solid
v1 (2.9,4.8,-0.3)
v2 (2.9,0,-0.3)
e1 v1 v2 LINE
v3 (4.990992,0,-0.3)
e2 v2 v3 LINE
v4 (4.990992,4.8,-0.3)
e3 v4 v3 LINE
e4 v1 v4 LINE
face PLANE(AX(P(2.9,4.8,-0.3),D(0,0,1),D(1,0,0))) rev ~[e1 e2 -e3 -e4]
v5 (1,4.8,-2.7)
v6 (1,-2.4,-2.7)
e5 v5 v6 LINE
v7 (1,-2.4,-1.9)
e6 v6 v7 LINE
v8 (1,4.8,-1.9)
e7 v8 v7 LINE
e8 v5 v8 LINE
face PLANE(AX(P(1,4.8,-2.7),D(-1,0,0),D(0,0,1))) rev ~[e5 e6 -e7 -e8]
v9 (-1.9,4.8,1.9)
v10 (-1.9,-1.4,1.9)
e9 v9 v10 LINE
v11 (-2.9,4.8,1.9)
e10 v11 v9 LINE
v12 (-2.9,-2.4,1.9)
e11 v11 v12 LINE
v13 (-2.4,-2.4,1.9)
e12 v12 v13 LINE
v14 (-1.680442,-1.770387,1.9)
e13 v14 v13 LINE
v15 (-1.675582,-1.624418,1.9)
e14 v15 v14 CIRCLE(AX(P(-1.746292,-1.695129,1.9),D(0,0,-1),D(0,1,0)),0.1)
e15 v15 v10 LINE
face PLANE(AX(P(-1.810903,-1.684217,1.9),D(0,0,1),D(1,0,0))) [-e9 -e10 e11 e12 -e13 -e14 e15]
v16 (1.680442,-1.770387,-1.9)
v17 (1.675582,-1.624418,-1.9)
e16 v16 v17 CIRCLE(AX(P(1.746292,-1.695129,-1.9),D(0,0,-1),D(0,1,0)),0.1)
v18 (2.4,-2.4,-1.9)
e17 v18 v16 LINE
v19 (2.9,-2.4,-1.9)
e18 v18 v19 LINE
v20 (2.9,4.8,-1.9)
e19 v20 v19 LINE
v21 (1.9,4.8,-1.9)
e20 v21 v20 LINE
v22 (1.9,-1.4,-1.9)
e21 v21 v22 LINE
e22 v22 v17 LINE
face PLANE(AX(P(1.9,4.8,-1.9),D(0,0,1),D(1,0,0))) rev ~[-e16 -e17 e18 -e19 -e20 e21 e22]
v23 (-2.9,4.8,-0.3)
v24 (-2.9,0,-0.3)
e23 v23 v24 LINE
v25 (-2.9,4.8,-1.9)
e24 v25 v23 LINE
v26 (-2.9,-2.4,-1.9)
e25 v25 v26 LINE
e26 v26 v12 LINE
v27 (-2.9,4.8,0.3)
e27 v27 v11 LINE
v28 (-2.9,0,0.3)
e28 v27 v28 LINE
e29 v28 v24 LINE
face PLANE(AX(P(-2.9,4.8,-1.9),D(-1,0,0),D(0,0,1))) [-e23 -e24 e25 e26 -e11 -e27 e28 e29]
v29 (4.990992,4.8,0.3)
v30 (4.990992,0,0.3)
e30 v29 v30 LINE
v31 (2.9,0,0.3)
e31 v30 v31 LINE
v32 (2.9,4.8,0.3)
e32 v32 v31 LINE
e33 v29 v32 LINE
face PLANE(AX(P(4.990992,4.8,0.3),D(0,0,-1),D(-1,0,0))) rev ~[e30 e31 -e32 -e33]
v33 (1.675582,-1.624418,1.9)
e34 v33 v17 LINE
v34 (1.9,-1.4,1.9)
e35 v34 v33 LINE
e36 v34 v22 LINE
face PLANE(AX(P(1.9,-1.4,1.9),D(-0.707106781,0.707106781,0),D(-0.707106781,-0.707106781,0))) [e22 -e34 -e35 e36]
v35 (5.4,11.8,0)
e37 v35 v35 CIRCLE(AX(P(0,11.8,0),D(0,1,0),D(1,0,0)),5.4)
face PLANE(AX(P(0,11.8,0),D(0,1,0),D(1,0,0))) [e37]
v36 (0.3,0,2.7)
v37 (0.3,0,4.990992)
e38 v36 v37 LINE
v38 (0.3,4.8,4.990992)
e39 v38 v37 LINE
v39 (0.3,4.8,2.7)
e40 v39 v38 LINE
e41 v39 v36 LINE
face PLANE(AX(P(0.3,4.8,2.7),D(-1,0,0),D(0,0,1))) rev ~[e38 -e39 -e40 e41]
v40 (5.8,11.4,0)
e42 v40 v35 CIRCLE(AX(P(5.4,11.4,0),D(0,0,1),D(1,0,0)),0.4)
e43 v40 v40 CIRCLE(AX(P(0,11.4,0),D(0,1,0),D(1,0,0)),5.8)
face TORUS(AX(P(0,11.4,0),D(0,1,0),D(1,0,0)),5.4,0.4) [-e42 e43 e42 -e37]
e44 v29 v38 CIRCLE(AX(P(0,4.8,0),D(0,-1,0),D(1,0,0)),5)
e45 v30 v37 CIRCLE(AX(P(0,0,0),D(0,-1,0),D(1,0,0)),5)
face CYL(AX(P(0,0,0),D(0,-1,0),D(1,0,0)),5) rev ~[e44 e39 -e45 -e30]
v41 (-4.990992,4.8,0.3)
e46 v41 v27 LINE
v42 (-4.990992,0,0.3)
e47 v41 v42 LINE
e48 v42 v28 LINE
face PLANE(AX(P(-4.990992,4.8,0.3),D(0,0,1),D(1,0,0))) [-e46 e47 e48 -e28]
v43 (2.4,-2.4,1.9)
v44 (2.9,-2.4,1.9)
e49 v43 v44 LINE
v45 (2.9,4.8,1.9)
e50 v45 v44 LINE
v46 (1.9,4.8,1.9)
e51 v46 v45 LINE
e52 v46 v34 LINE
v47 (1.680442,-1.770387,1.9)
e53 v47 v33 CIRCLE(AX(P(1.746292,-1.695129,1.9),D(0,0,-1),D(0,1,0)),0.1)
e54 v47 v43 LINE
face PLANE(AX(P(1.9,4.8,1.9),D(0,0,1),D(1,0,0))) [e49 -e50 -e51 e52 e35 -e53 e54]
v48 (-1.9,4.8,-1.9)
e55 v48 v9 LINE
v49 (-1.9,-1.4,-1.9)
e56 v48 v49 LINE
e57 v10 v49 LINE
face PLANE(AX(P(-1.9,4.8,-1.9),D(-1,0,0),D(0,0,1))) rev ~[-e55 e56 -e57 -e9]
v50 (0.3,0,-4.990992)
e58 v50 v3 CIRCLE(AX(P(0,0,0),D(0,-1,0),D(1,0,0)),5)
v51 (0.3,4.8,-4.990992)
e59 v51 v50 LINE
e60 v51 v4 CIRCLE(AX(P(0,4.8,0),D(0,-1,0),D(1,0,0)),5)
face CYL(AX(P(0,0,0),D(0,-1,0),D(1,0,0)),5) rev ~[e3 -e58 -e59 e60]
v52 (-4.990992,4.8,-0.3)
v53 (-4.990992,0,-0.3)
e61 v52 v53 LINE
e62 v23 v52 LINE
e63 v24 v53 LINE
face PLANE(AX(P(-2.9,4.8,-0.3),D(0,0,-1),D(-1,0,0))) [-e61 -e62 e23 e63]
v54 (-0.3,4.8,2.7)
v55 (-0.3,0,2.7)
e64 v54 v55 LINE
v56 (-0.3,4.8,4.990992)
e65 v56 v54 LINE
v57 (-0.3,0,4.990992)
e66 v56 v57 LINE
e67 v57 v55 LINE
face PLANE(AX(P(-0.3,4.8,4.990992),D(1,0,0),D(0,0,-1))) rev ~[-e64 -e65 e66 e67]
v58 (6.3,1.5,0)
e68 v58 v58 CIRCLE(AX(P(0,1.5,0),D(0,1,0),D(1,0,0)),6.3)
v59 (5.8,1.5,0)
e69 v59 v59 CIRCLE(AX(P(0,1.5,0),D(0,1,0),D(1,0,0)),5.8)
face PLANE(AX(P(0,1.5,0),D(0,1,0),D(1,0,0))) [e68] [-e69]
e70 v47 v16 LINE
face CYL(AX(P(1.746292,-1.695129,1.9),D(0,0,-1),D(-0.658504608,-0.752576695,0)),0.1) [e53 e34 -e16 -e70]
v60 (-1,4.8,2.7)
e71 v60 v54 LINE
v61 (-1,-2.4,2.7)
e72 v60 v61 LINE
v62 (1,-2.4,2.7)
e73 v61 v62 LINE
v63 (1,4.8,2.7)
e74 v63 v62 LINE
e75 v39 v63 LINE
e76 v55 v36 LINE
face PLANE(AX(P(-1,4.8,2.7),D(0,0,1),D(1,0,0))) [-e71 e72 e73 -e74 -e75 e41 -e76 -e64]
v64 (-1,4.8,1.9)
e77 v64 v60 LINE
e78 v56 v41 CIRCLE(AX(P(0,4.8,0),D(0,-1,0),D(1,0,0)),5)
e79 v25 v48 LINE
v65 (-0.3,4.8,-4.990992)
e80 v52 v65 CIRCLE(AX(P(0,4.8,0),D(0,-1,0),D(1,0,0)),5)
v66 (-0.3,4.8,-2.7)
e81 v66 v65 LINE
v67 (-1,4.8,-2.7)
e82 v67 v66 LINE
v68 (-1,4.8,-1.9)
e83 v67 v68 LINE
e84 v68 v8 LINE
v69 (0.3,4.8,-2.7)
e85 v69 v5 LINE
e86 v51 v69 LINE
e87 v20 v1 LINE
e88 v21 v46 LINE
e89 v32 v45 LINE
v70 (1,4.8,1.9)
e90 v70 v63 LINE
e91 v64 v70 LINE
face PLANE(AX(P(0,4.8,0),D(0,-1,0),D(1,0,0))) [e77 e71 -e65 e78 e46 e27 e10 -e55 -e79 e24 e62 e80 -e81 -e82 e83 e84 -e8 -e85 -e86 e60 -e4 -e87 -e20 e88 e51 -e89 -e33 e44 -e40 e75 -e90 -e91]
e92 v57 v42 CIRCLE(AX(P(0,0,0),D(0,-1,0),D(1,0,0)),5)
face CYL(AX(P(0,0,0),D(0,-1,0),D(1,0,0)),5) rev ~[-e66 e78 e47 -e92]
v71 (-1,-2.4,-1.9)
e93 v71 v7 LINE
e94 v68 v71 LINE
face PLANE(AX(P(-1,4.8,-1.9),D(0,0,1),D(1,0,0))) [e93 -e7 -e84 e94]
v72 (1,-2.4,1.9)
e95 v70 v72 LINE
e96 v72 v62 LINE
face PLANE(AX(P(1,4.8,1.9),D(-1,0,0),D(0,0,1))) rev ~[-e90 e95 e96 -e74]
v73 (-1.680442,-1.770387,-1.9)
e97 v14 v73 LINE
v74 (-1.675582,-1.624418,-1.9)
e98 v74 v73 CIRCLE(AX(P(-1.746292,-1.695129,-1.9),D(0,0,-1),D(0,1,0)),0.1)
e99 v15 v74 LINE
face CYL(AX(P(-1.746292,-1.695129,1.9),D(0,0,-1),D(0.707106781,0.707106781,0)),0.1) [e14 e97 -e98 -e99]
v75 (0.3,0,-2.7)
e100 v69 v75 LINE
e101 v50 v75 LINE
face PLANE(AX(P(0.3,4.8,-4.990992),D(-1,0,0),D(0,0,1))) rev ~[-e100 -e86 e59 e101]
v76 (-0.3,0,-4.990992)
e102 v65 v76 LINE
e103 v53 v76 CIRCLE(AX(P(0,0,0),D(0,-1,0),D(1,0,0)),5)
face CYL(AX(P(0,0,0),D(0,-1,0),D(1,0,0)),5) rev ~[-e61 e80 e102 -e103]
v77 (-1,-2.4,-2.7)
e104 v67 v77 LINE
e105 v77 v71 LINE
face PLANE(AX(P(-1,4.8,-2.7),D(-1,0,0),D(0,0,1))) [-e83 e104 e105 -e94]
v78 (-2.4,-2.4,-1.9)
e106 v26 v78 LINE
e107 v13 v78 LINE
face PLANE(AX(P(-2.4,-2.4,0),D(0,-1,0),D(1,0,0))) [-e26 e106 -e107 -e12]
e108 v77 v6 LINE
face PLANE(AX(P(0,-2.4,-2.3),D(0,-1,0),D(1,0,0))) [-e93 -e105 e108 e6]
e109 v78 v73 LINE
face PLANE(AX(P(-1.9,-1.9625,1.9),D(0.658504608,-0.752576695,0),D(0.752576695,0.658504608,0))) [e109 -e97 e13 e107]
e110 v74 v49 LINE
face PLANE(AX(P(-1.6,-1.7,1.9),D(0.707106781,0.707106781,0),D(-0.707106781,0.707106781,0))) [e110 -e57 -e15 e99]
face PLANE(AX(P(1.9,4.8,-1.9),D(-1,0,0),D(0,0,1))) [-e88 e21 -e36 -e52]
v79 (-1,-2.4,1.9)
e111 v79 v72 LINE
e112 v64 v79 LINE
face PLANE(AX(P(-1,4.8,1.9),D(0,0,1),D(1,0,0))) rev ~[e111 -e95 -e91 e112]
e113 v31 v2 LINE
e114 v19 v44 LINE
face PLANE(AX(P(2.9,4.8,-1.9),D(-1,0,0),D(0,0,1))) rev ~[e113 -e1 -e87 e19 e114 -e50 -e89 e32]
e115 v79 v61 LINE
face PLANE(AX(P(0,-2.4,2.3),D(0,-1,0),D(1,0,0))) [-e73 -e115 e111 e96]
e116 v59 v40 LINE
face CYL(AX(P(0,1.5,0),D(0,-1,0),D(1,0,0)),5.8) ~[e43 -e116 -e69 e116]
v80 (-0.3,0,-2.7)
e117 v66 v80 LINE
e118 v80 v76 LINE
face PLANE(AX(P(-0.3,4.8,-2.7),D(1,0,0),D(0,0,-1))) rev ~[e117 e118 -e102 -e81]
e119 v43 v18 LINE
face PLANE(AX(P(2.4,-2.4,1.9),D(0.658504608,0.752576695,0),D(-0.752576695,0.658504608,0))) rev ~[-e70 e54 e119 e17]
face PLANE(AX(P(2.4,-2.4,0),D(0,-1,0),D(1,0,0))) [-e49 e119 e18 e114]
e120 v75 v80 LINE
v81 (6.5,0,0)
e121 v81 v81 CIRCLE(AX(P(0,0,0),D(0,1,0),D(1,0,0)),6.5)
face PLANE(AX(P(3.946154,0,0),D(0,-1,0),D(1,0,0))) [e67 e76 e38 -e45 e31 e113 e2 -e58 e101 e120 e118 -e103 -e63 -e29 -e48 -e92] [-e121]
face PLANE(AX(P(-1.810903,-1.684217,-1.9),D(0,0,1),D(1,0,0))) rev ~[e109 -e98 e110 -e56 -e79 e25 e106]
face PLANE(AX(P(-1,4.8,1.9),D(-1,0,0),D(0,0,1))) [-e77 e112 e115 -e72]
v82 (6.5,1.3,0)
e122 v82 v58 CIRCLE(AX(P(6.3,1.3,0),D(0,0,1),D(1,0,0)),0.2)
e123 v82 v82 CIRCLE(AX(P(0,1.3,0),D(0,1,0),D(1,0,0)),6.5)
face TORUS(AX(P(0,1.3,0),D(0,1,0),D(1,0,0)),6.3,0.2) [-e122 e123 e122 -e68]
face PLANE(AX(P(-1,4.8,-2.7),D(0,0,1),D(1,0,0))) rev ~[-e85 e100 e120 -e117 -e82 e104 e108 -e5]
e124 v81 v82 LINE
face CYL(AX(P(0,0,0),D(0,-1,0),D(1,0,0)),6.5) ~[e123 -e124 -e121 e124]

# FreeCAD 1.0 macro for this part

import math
import FreeCAD as App
import Part
import Sketcher

V = App.Vector


def edges_at(feature, points):
    """Names of the edges that pass closest to the given points."""
    edges = feature.Shape.Edges
    near = lambda p: min(range(len(edges)), key=lambda i: edges[i].distToShape(Part.Vertex(*p))[0])
    return sorted({f"Edge{near(p) + 1}" for p in points})

doc = App.newDocument("Part")
body = doc.addObject("PartDesign::Body", "Body")

# Sketch on XZ plane
sketch1 = body.newObject("Sketcher::SketchObject", "Sketch")
sketch1.AttachmentSupport = (doc.getObject("XZ_Plane"), [""])
sketch1.MapMode = "FlatFace"
sketch1.addGeometry(Part.Circle(V(0, 0, 0), V(0, 0, 1), 6.5), False)
sketch1.addConstraint([
    Sketcher.Constraint("Coincident", 0, 3, -1, 1),
    Sketcher.Constraint("Diameter", 0, 13.0),
])
pad1 = body.newObject("PartDesign::Pad", "Pad")
pad1.Profile = sketch1
pad1.Length = 1.5
pad1.Reversed = True

# Sketch on XZ plane
sketch2 = body.newObject("Sketcher::SketchObject", "Sketch001")
sketch2.AttachmentSupport = (doc.getObject("XZ_Plane"), [""])
sketch2.MapMode = "FlatFace"
sketch2.AttachmentOffset = App.Placement(V(0, 0, -1.5), App.Rotation())
sketch2.addGeometry(Part.Circle(V(0, 0, 0), V(0, 0, 1), 5.8), False)
sketch2.addConstraint([
    Sketcher.Constraint("Coincident", 0, 3, -1, 1),
    Sketcher.Constraint("Diameter", 0, 11.6),
])
pad2 = body.newObject("PartDesign::Pad", "Pad001")
pad2.Profile = sketch2
pad2.Length = 10.3
pad2.Reversed = True
doc.recompute()

fillet = body.newObject("PartDesign::Fillet", "Fillet")
fillet.Base = (pad2, edges_at(pad2, [(-5.8, 11.8, 0)]))
fillet.Radius = 0.4

# Sketch on XZ plane
sketch3 = body.newObject("Sketcher::SketchObject", "Sketch002")
sketch3.AttachmentSupport = (doc.getObject("XZ_Plane"), [""])
sketch3.MapMode = "FlatFace"
sketch3.addGeometry(Part.Circle(V(0, 0, 0), V(0, 0, 1), 5), False)
sketch3.addConstraint([
    Sketcher.Constraint("Coincident", 0, 3, -1, 1),
    Sketcher.Constraint("Diameter", 0, 10.0),
])
pocket1 = body.newObject("PartDesign::Pocket", "Pocket")
pocket1.Profile = sketch3
pocket1.Length = 4.8

# Sketch on XZ plane
sketch4 = body.newObject("Sketcher::SketchObject", "Sketch003")
sketch4.AttachmentSupport = (doc.getObject("XZ_Plane"), [""])
sketch4.MapMode = "FlatFace"
sketch4.AttachmentOffset = App.Placement(V(0, 0, -4.8), App.Rotation())
sketch4.addGeometry([
    Part.LineSegment(V(-2.9, 0.3, 0), V(-4.990992, 0.3, 0)),  # 0
    Part.ArcOfCircle(Part.Circle(V(0, 0, 0), V(0, 0, 1), 5), math.radians(176.560187), math.radians(183.439813)),  # 1
    Part.LineSegment(V(-4.990992, -0.3, 0), V(-2.9, -0.3, 0)),  # 2
    Part.LineSegment(V(-2.9, -0.3, 0), V(-2.9, 0.3, 0)),  # 3
    Part.LineSegment(V(2.9, 0.3, 0), V(2.9, -0.3, 0)),  # 4
    Part.LineSegment(V(2.9, -0.3, 0), V(4.990992, -0.3, 0)),  # 5
    Part.ArcOfCircle(Part.Circle(V(0, 0, 0), V(0, 0, 1), 5), math.radians(-3.439813), math.radians(3.439813)),  # 6
    Part.LineSegment(V(4.990992, 0.3, 0), V(2.9, 0.3, 0)),  # 7
    Part.LineSegment(V(-0.3, 4.990992, 0), V(-0.3, 2.7, 0)),  # 8
    Part.LineSegment(V(-0.3, 2.7, 0), V(0.3, 2.7, 0)),  # 9
    Part.LineSegment(V(0.3, 2.7, 0), V(0.3, 4.990992, 0)),  # 10
    Part.ArcOfCircle(Part.Circle(V(0, 0, 0), V(0, 0, 1), 5), math.radians(86.560187), math.radians(93.439813)),  # 11
    Part.LineSegment(V(0.3, -2.7, 0), V(-0.3, -2.7, 0)),  # 12
    Part.LineSegment(V(-0.3, -2.7, 0), V(-0.3, -4.990992, 0)),  # 13
    Part.ArcOfCircle(Part.Circle(V(0, 0, 0), V(0, 0, 1), 5), math.radians(-93.439813), math.radians(-86.560187)),  # 14
    Part.LineSegment(V(0.3, -4.990992, 0), V(0.3, -2.7, 0)),  # 15
], False)
sketch4.addConstraint([
    Sketcher.Constraint("Coincident", 0, 2, 1, 1),
    Sketcher.Constraint("Coincident", 1, 2, 2, 1),
    Sketcher.Constraint("Coincident", 2, 2, 3, 1),
    Sketcher.Constraint("Coincident", 3, 2, 0, 1),
    Sketcher.Constraint("Coincident", 4, 2, 5, 1),
    Sketcher.Constraint("Coincident", 5, 2, 6, 1),
    Sketcher.Constraint("Coincident", 6, 2, 7, 1),
    Sketcher.Constraint("Coincident", 7, 2, 4, 1),
    Sketcher.Constraint("Coincident", 8, 2, 9, 1),
    Sketcher.Constraint("Coincident", 9, 2, 10, 1),
    Sketcher.Constraint("Coincident", 10, 2, 11, 1),
    Sketcher.Constraint("Coincident", 11, 2, 8, 1),
    Sketcher.Constraint("Coincident", 12, 2, 13, 1),
    Sketcher.Constraint("Coincident", 13, 2, 14, 1),
    Sketcher.Constraint("Coincident", 14, 2, 15, 1),
    Sketcher.Constraint("Coincident", 15, 2, 12, 1),
    Sketcher.Constraint("Horizontal", 0),
    Sketcher.Constraint("Horizontal", 2),
    Sketcher.Constraint("Vertical", 3),
    Sketcher.Constraint("Vertical", 4),
    Sketcher.Constraint("Horizontal", 5),
    Sketcher.Constraint("Horizontal", 7),
    Sketcher.Constraint("Vertical", 8),
    Sketcher.Constraint("Horizontal", 9),
    Sketcher.Constraint("Vertical", 10),
    Sketcher.Constraint("Horizontal", 12),
    Sketcher.Constraint("Vertical", 13),
    Sketcher.Constraint("Vertical", 15),
    Sketcher.Constraint("Coincident", 1, 3, -1, 1),
    Sketcher.Constraint("Coincident", 6, 3, -1, 1),
    Sketcher.Constraint("Coincident", 11, 3, -1, 1),
    Sketcher.Constraint("Coincident", 14, 3, -1, 1),
    Sketcher.Constraint("Equal", 1, 6),
    Sketcher.Constraint("Equal", 6, 11),
    Sketcher.Constraint("Equal", 11, 14),
    Sketcher.Constraint("Symmetric", 3, 2, 4, 2, -1, 1),
    Sketcher.Constraint("Symmetric", 9, 2, 12, 2, -1, 1),
    Sketcher.Constraint("Horizontal", 2, 2, 4, 2),
    Sketcher.Constraint("Horizontal", 3, 2, 6, 2),
    Sketcher.Constraint("Horizontal", 10, 2, 11, 2),
    Sketcher.Constraint("Horizontal", 13, 2, 14, 2),
    Sketcher.Constraint("Equal", 12, 3),
    Sketcher.Constraint("Radius", 1, 5.0),
    Sketcher.Constraint("DistanceX", 9, 1, 9, 2, 0.6),
    Sketcher.Constraint("DistanceX", 2, 2, -1, 1, 2.9),
    Sketcher.Constraint("DistanceY", -1, 1, 8, 2, 2.7),
])
pad3 = body.newObject("PartDesign::Pad", "Pad002")
pad3.Profile = sketch4
pad3.Length = 4.8

# Sketch on XZ plane
sketch5 = body.newObject("Sketcher::SketchObject", "Sketch004")
sketch5.AttachmentSupport = (doc.getObject("XZ_Plane"), [""])
sketch5.MapMode = "FlatFace"
sketch5.AttachmentOffset = App.Placement(V(0, 0, -4.8), App.Rotation())
sketch5.addGeometry([
    Part.LineSegment(V(-1, 2.7, 0), V(-1, 1.9, 0)),  # 0
    Part.LineSegment(V(-1, 1.9, 0), V(1, 1.9, 0)),  # 1
    Part.LineSegment(V(1, 1.9, 0), V(1, 2.7, 0)),  # 2
    Part.LineSegment(V(1, 2.7, 0), V(-1, 2.7, 0)),  # 3
    Part.LineSegment(V(-2.9, 1.9, 0), V(-2.9, -1.9, 0)),  # 4
    Part.LineSegment(V(-2.9, -1.9, 0), V(-1.9, -1.9, 0)),  # 5
    Part.LineSegment(V(-1.9, -1.9, 0), V(-1.9, 1.9, 0)),  # 6
    Part.LineSegment(V(-1.9, 1.9, 0), V(-2.9, 1.9, 0)),  # 7
    Part.LineSegment(V(1.9, 1.9, 0), V(1.9, -1.9, 0)),  # 8
    Part.LineSegment(V(1.9, -1.9, 0), V(2.9, -1.9, 0)),  # 9
    Part.LineSegment(V(2.9, -1.9, 0), V(2.9, 1.9, 0)),  # 10
    Part.LineSegment(V(2.9, 1.9, 0), V(1.9, 1.9, 0)),  # 11
    Part.LineSegment(V(-1, -1.9, 0), V(-1, -2.7, 0)),  # 12
    Part.LineSegment(V(-1, -2.7, 0), V(1, -2.7, 0)),  # 13
    Part.LineSegment(V(1, -2.7, 0), V(1, -1.9, 0)),  # 14
    Part.LineSegment(V(1, -1.9, 0), V(-1, -1.9, 0)),  # 15
], False)
sketch5.addConstraint([
    Sketcher.Constraint("Coincident", 0, 2, 1, 1),
    Sketcher.Constraint("Coincident", 1, 2, 2, 1),
    Sketcher.Constraint("Coincident", 2, 2, 3, 1),
    Sketcher.Constraint("Coincident", 3, 2, 0, 1),
    Sketcher.Constraint("Coincident", 4, 2, 5, 1),
    Sketcher.Constraint("Coincident", 5, 2, 6, 1),
    Sketcher.Constraint("Coincident", 6, 2, 7, 1),
    Sketcher.Constraint("Coincident", 7, 2, 4, 1),
    Sketcher.Constraint("Coincident", 8, 2, 9, 1),
    Sketcher.Constraint("Coincident", 9, 2, 10, 1),
    Sketcher.Constraint("Coincident", 10, 2, 11, 1),
    Sketcher.Constraint("Coincident", 11, 2, 8, 1),
    Sketcher.Constraint("Coincident", 12, 2, 13, 1),
    Sketcher.Constraint("Coincident", 13, 2, 14, 1),
    Sketcher.Constraint("Coincident", 14, 2, 15, 1),
    Sketcher.Constraint("Coincident", 15, 2, 12, 1),
    Sketcher.Constraint("Vertical", 0),
    Sketcher.Constraint("Horizontal", 1),
    Sketcher.Constraint("Vertical", 2),
    Sketcher.Constraint("Horizontal", 3),
    Sketcher.Constraint("Vertical", 4),
    Sketcher.Constraint("Horizontal", 5),
    Sketcher.Constraint("Vertical", 6),
    Sketcher.Constraint("Horizontal", 7),
    Sketcher.Constraint("Vertical", 8),
    Sketcher.Constraint("Horizontal", 9),
    Sketcher.Constraint("Vertical", 10),
    Sketcher.Constraint("Horizontal", 11),
    Sketcher.Constraint("Vertical", 12),
    Sketcher.Constraint("Horizontal", 13),
    Sketcher.Constraint("Vertical", 14),
    Sketcher.Constraint("Horizontal", 15),
    Sketcher.Constraint("Symmetric", 6, 2, 8, 2, -1, 1),
    Sketcher.Constraint("Symmetric", 4, 2, 10, 2, -1, 1),
    Sketcher.Constraint("Symmetric", 2, 2, 12, 2, -1, 1),
    Sketcher.Constraint("Symmetric", 0, 2, 14, 2, -1, 1),
    Sketcher.Constraint("Horizontal", 1, 2, 6, 2),
    Sketcher.Constraint("Horizontal", 5, 2, 8, 2),
    Sketcher.Constraint("Vertical", 3, 2, 12, 2),
    Sketcher.Constraint("DistanceX", 1, 1, 1, 2, 2.0),
    Sketcher.Constraint("DistanceX", 5, 1, 5, 2, 1.0),
    Sketcher.Constraint("DistanceY", 0, 2, 0, 1, 0.8),
    Sketcher.Constraint("DistanceY", 4, 2, 4, 1, 3.8),
    Sketcher.Constraint("DistanceX", 4, 2, -1, 1, 2.9),
])
pad4 = body.newObject("PartDesign::Pad", "Pad003")
pad4.Profile = sketch5
pad4.Length = 7.2

# Sketch on XY plane
sketch6 = body.newObject("Sketcher::SketchObject", "Sketch005")
sketch6.AttachmentSupport = (doc.getObject("XY_Plane"), [""])
sketch6.MapMode = "FlatFace"
sketch6.AttachmentOffset = App.Placement(V(0, 0, 1.9), App.Rotation())
sketch6.addGeometry([
    Part.LineSegment(V(-1.9, -2.4, 0), V(-1.9, -1.9625, 0)),
    Part.LineSegment(V(-1.9, -1.9625, 0), V(-2.4, -2.4, 0)),
    Part.LineSegment(V(-2.4, -2.4, 0), V(-1.9, -2.4, 0)),
], False)
sketch6.addConstraint([
    Sketcher.Constraint("Coincident", 0, 2, 1, 1),
    Sketcher.Constraint("Coincident", 1, 2, 2, 1),
    Sketcher.Constraint("Coincident", 2, 2, 0, 1),
    Sketcher.Constraint("Vertical", 0),
    Sketcher.Constraint("Horizontal", 2),
    Sketcher.Constraint("DistanceX", 2, 1, 2, 2, 0.5),
    Sketcher.Constraint("DistanceX", 0, 2, -1, 1, 1.9),
    Sketcher.Constraint("DistanceY", 1, 2, -1, 1, 2.4),
    Sketcher.Constraint("DistanceY", 0, 1, 0, 2, 0.4375),
])
pocket2 = body.newObject("PartDesign::Pocket", "Pocket001")
pocket2.Profile = sketch6
pocket2.Type = "UpToFirst"

# Sketch on XY plane
sketch7 = body.newObject("Sketcher::SketchObject", "Sketch006")
sketch7.AttachmentSupport = (doc.getObject("XY_Plane"), [""])
sketch7.MapMode = "FlatFace"
sketch7.AttachmentOffset = App.Placement(V(0, 0, 1.9), App.Rotation())
sketch7.addGeometry([
    Part.LineSegment(V(1.9, -1.9625, 0), V(1.9, -2.4, 0)),
    Part.LineSegment(V(1.9, -2.4, 0), V(2.4, -2.4, 0)),
    Part.LineSegment(V(2.4, -2.4, 0), V(1.9, -1.9625, 0)),
], False)
sketch7.addConstraint([
    Sketcher.Constraint("Coincident", 0, 2, 1, 1),
    Sketcher.Constraint("Coincident", 1, 2, 2, 1),
    Sketcher.Constraint("Coincident", 2, 2, 0, 1),
    Sketcher.Constraint("Vertical", 0),
    Sketcher.Constraint("Horizontal", 1),
    Sketcher.Constraint("DistanceX", 1, 1, 1, 2, 0.5),
    Sketcher.Constraint("DistanceX", -1, 1, 0, 2, 1.9),
    Sketcher.Constraint("DistanceY", 0, 2, -1, 1, 2.4),
    Sketcher.Constraint("DistanceY", 0, 2, 0, 1, 0.4375),
])
pocket3 = body.newObject("PartDesign::Pocket", "Pocket002")
pocket3.Profile = sketch7
pocket3.Type = "UpToFirst"

# Sketch on XY plane
sketch8 = body.newObject("Sketcher::SketchObject", "Sketch007")
sketch8.AttachmentSupport = (doc.getObject("XY_Plane"), [""])
sketch8.MapMode = "FlatFace"
sketch8.AttachmentOffset = App.Placement(V(0, 0, 1.9), App.Rotation())
sketch8.addGeometry([
    Part.LineSegment(V(-1.6, -1.7, 0), V(-1.9, -1.4, 0)),  # 0
    Part.LineSegment(V(-1.9, -1.4, 0), V(-1.9, -1.9625, 0)),  # 1
    Part.LineSegment(V(-1.9, -1.9625, 0), V(-1.6, -1.7, 0)),  # 2
    Part.LineSegment(V(1.6, -1.7, 0), V(1.9, -1.9625, 0)),  # 3
    Part.LineSegment(V(1.9, -1.9625, 0), V(1.9, -1.4, 0)),  # 4
    Part.LineSegment(V(1.9, -1.4, 0), V(1.6, -1.7, 0)),  # 5
], False)
sketch8.addConstraint([
    Sketcher.Constraint("Coincident", 0, 2, 1, 1),
    Sketcher.Constraint("Coincident", 1, 2, 2, 1),
    Sketcher.Constraint("Coincident", 2, 2, 0, 1),
    Sketcher.Constraint("Coincident", 3, 2, 4, 1),
    Sketcher.Constraint("Coincident", 4, 2, 5, 1),
    Sketcher.Constraint("Coincident", 5, 2, 3, 1),
    Sketcher.Constraint("Vertical", 1),
    Sketcher.Constraint("Vertical", 4),
    Sketcher.Constraint("Symmetric", 1, 2, 3, 2, -2),
    Sketcher.Constraint("Symmetric", 2, 2, 5, 2, -2),
    Sketcher.Constraint("Perpendicular", 0, 5),
    Sketcher.Constraint("Horizontal", 0, 2, 4, 2),
    Sketcher.Constraint("DistanceX", 0, 2, -1, 1, 1.9),
    Sketcher.Constraint("DistanceY", 0, 2, -1, 1, 1.4),
    Sketcher.Constraint("DistanceX", 2, 2, -1, 1, 1.6),
    Sketcher.Constraint("DistanceY", 1, 2, 1, 1, 0.5625),
])
pad5 = body.newObject("PartDesign::Pad", "Pad004")
pad5.Profile = sketch8
pad5.Length = 3.8
pad5.Reversed = True
doc.recompute()

fillet2 = body.newObject("PartDesign::Fillet", "Fillet001")
fillet2.Base = (pad5, edges_at(pad5, [(-1.6, -1.7, 0), (1.6, -1.7, 0)]))
fillet2.Radius = 0.1
doc.recompute()

fillet3 = body.newObject("PartDesign::Fillet", "Fillet002")
fillet3.Base = (fillet2, edges_at(fillet2, [(-6.5, 1.5, 0)]))
fillet3.Radius = 0.2

doc.recompute()
